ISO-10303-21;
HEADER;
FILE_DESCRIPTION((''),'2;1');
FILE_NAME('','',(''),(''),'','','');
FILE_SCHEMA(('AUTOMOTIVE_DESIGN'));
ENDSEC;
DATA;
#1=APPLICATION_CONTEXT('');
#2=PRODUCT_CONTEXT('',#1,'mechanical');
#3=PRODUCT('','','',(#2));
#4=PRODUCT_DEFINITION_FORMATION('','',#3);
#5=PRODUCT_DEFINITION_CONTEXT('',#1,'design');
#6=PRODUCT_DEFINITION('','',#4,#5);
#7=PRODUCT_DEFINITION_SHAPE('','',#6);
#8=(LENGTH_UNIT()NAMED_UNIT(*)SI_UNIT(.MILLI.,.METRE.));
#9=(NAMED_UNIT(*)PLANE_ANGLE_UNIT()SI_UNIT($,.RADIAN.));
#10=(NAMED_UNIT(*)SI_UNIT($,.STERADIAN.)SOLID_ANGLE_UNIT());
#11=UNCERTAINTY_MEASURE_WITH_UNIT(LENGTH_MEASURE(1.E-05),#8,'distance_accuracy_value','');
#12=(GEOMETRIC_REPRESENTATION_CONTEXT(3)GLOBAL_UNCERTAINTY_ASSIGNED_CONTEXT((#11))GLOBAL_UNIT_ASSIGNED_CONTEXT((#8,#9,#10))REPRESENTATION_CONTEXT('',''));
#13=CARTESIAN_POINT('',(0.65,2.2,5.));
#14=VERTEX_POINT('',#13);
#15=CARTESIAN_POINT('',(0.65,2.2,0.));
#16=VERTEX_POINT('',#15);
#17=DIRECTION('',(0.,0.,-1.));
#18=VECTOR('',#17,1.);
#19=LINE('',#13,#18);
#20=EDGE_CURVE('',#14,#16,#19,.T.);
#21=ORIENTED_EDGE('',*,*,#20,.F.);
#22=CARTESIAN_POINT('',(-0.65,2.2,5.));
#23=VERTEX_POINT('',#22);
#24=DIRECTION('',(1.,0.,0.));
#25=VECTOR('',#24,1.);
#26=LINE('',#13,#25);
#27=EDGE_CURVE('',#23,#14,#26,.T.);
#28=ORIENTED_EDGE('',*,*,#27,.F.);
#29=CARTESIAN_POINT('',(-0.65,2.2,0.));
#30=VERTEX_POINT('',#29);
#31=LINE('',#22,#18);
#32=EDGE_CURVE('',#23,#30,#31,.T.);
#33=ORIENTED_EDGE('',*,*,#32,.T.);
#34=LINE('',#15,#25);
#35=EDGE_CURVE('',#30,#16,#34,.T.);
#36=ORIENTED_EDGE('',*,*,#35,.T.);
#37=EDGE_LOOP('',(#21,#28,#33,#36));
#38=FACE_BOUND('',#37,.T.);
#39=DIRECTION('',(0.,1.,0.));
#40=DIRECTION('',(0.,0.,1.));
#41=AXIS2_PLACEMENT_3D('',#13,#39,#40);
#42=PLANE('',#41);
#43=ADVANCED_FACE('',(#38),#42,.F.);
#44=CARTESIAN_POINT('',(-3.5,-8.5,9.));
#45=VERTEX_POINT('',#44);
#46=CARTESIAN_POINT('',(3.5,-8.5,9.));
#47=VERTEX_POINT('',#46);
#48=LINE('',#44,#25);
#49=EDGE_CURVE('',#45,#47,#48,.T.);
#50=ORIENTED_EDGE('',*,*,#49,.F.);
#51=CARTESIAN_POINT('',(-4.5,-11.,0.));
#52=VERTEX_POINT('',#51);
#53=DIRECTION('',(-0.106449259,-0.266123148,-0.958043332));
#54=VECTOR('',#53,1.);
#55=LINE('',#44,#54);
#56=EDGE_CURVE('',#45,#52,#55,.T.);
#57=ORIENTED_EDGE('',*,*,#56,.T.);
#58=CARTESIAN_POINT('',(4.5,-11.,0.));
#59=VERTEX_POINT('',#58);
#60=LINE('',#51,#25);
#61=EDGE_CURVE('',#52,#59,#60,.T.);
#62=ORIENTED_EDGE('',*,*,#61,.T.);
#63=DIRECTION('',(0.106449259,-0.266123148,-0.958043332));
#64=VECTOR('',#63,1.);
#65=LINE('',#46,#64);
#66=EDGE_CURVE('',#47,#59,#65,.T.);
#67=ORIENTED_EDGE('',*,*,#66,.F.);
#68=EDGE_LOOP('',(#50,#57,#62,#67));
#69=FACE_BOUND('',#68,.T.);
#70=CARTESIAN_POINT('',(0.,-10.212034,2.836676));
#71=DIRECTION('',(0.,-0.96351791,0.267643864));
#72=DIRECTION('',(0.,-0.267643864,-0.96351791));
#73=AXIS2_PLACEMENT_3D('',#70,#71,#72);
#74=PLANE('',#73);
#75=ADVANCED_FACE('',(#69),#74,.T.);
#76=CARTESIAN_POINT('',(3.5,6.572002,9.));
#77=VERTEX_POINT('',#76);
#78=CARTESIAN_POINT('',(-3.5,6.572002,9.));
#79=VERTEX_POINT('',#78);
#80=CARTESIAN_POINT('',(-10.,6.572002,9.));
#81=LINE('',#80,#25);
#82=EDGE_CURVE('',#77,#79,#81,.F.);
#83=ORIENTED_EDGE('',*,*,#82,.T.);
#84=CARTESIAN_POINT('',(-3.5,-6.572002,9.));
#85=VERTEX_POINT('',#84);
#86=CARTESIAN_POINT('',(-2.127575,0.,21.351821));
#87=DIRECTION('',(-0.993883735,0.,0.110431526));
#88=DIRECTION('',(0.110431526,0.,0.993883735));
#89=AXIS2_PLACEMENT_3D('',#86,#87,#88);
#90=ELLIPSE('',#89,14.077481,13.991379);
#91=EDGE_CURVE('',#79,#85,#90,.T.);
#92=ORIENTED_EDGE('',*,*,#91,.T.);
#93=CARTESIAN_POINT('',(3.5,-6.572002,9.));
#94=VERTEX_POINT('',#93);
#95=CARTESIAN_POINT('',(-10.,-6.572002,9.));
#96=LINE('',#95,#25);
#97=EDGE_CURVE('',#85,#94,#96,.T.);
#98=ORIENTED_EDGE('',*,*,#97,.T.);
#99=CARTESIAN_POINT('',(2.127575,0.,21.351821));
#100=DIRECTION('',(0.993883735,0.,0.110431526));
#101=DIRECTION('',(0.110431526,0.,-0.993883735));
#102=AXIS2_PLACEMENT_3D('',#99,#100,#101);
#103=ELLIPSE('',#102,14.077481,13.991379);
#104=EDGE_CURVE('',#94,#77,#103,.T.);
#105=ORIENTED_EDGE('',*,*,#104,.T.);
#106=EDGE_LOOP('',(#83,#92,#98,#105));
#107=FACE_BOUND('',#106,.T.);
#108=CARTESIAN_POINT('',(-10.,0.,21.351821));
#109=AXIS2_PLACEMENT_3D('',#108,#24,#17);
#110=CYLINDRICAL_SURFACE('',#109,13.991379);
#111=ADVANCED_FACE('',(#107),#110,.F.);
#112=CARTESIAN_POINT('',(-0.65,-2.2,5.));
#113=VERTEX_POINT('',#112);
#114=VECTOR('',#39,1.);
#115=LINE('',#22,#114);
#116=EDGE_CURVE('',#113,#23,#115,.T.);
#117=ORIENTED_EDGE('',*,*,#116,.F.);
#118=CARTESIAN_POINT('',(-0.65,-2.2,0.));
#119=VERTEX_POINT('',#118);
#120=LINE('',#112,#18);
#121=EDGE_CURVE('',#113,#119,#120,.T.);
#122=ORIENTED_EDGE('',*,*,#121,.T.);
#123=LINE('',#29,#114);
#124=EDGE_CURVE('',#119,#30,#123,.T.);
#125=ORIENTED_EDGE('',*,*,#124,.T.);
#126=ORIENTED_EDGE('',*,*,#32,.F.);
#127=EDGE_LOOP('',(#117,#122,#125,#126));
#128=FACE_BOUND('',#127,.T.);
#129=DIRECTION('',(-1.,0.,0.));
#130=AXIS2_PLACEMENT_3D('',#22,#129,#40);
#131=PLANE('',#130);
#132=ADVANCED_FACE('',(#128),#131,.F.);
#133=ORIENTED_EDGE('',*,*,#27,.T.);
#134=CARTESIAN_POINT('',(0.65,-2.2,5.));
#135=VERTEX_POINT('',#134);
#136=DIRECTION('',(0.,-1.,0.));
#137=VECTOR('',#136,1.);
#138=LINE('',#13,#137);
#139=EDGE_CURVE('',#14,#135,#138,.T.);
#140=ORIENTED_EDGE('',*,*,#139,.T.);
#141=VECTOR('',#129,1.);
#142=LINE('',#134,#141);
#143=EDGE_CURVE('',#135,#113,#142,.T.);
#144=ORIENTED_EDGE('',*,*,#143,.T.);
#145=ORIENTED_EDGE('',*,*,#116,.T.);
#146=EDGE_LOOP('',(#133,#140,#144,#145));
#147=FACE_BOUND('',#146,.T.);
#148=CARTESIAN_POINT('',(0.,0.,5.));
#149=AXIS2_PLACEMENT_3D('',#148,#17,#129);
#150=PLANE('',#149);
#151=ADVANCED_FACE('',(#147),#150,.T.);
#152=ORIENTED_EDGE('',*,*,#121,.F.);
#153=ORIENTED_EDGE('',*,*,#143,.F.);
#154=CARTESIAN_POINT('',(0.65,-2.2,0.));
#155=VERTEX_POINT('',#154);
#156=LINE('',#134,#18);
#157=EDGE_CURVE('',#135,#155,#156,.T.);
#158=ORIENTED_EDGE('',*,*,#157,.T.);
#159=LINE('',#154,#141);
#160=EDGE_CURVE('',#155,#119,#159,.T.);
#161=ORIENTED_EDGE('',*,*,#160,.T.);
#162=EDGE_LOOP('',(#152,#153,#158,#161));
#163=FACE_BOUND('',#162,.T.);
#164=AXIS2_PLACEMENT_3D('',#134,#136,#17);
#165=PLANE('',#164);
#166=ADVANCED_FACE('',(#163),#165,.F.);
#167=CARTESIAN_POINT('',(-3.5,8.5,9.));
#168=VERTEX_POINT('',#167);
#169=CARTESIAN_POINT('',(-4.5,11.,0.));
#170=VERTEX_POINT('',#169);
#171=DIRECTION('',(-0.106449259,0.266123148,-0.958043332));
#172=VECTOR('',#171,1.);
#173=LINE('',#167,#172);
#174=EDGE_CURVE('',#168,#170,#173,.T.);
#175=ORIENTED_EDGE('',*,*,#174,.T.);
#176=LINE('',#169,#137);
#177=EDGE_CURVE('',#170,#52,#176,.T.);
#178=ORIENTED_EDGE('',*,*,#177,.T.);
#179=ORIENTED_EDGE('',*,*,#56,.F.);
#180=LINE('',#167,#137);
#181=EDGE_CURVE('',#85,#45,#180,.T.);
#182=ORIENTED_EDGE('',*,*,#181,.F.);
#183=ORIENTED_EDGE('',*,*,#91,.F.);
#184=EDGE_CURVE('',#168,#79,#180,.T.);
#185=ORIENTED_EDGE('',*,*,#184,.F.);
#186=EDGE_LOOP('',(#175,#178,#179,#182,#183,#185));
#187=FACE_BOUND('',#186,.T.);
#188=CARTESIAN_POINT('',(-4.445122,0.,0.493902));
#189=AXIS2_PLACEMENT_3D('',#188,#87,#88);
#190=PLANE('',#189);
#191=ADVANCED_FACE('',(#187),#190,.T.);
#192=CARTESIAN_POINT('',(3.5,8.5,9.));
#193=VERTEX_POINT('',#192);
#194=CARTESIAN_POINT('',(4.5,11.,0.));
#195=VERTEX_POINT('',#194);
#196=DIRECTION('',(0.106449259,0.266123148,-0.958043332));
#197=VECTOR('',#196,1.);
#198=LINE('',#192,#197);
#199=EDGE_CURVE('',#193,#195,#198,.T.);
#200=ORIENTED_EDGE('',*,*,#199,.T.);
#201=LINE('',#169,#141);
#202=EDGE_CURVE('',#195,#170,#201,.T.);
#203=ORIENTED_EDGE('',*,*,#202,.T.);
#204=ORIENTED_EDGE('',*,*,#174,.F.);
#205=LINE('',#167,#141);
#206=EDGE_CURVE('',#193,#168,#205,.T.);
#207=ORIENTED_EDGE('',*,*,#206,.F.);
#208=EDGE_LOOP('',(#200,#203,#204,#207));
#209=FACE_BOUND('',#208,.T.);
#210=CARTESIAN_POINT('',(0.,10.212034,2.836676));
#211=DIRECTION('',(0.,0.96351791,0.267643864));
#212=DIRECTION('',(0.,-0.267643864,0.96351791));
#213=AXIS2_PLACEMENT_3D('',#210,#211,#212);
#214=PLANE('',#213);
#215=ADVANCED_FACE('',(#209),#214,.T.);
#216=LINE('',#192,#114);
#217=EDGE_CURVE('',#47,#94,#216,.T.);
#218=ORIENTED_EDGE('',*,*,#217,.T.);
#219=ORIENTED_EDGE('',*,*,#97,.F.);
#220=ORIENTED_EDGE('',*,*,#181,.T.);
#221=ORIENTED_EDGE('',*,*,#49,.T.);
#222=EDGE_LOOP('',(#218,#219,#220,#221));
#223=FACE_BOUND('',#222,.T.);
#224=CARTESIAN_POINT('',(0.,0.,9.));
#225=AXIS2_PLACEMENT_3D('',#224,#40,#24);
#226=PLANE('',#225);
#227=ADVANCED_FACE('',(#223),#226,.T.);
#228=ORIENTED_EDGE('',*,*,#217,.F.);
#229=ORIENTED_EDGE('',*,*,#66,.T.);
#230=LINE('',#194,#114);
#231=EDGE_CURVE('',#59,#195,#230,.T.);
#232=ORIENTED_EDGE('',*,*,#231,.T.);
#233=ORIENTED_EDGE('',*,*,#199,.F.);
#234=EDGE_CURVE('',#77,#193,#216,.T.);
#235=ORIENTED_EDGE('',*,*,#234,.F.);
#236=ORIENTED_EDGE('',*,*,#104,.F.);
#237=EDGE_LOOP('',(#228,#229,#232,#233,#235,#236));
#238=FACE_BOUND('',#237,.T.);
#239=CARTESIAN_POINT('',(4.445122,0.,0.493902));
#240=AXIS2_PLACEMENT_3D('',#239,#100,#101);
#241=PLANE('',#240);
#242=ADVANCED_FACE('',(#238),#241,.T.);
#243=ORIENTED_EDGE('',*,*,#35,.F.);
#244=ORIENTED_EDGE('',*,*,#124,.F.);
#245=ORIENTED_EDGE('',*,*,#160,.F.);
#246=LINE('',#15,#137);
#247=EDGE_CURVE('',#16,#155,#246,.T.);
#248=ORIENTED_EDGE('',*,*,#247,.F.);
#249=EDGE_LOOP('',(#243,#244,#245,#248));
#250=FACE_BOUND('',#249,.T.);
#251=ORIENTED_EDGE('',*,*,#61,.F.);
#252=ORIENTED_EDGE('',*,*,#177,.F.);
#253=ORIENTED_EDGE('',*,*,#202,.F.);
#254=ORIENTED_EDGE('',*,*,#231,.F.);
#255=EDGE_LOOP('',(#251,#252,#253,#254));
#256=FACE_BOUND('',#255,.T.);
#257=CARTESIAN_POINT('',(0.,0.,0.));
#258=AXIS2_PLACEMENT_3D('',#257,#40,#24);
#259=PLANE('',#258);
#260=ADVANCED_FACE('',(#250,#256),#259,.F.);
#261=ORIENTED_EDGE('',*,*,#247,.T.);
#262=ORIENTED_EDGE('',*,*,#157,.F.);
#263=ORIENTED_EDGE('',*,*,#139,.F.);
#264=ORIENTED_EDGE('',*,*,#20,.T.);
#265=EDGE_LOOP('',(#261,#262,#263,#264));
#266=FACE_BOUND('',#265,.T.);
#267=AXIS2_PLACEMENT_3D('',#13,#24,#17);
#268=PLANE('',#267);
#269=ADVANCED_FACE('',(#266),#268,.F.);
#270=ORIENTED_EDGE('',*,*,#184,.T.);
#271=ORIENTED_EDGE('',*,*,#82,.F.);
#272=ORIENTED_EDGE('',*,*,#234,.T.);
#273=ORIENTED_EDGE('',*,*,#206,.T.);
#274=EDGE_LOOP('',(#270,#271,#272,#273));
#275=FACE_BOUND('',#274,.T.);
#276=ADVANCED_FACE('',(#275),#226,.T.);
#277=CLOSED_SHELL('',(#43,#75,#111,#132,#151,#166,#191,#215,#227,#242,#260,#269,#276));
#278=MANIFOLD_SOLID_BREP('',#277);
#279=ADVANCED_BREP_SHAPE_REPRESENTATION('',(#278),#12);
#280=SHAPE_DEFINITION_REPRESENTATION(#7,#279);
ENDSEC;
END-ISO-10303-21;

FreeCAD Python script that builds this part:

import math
import FreeCAD as App
import Part
import Sketcher
from FreeCAD import Vector
Q = App.Units.Quantity


def add_polygon(sketch, points):
    """Adds a closed chain of lines whose ends are joined by coincident constraints."""
    first, n = sketch.GeometryCount, len(points)
    for a, b in zip(points, points[1:] + points[:1]):
        sketch.addGeometry(Part.LineSegment(App.Vector(*a, 0), App.Vector(*b, 0)), False)
    for i in range(n):
        sketch.addConstraint(Sketcher.Constraint("Coincident", first + i, 2, first + (i + 1) % n, 1))

doc = App.newDocument("Part")
body = doc.addObject("PartDesign::Body", "Body")

sketch1 = body.newObject("Sketcher::SketchObject", "Sketch")
sketch1.AttachmentSupport = (doc.getObject("XY_Plane"), [""])
sketch1.MapMode = "FlatFace"
sketch1.AttachmentOffset = App.Placement(Vector(0, 0, 9), App.Rotation())
add_polygon(sketch1, [(4, 8), (-4, 8), (-4, -8), (4, -8)])
sketch1.addConstraint([
    Sketcher.Constraint("Horizontal", 0),
    Sketcher.Constraint("Vertical", 1),
    Sketcher.Constraint("Horizontal", 2),
    Sketcher.Constraint("Vertical", 3),
    Sketcher.Constraint("Symmetric", 0, 2, 2, 2, -1, 1),
    Sketcher.Constraint("DistanceX", 0, 2, 0, 1, Q("7 mm")),
    Sketcher.Constraint("DistanceY", 1, 2, 1, 1, Q("17 mm")),
])

sketch2 = body.newObject("Sketcher::SketchObject", "Sketch001")
sketch2.AttachmentSupport = (doc.getObject("XY_Plane"), [""])
sketch2.MapMode = "FlatFace"
add_polygon(sketch2, [(4, 11), (-4, 11), (-4, -11), (4, -11)])
sketch2.addConstraint([
    Sketcher.Constraint("Horizontal", 0),
    Sketcher.Constraint("Vertical", 1),
    Sketcher.Constraint("Horizontal", 2),
    Sketcher.Constraint("Vertical", 3),
    Sketcher.Constraint("Symmetric", 0, 2, 2, 2, -1, 1),
    Sketcher.Constraint("DistanceX", 0, 2, 0, 1, Q("9 mm")),
    Sketcher.Constraint("DistanceY", 1, 2, 1, 1, Q("22 mm")),
])

additiveloft = body.newObject("PartDesign::AdditiveLoft", "AdditiveLoft")
additiveloft.Profile = sketch1
additiveloft.Sections = [sketch2]

sketch3 = body.newObject("Sketcher::SketchObject", "Sketch002")
sketch3.AttachmentSupport = (doc.getObject("XY_Plane"), [""])
sketch3.MapMode = "FlatFace"
add_polygon(sketch3, [(0.7, 2.2), (0.7, -2.2), (-0.7, -2.2), (-0.7, 2.2)])
sketch3.addConstraint([
    Sketcher.Constraint("Vertical", 0),
    Sketcher.Constraint("Horizontal", 1),
    Sketcher.Constraint("Vertical", 2),
    Sketcher.Constraint("Horizontal", 3),
    Sketcher.Constraint("Symmetric", 0, 2, 2, 2, -1, 1),
    Sketcher.Constraint("DistanceX", 1, 2, 1, 1, Q("1.3 mm")),
    Sketcher.Constraint("DistanceY", 0, 2, 0, 1, Q("4.4 mm")),
])
pocket1 = body.newObject("PartDesign::Pocket", "Pocket")
pocket1.Profile = sketch3
pocket1.Length = 5
pocket1.Reversed = True

sketch4 = body.newObject("Sketcher::SketchObject", "Sketch003")
sketch4.AttachmentSupport = (doc.getObject("YZ_Plane"), [""])
sketch4.MapMode = "FlatFace"
sketch4.addGeometry([
    Part.LineSegment(Vector(8, 10, 0), Vector(-8, 10, 0)),
    Part.ArcOfCircle(Part.Circle(Vector(0, 21, 0), Vector(0, 0, 1), 14), math.radians(-127), math.radians(-55)),
], False)
sketch4.addConstraint([
    Sketcher.Constraint("Coincident", 0, 1, 1, 2),
    Sketcher.Constraint("Coincident", 1, 1, 0, 2),
    Sketcher.Constraint("PointOnObject", 1, 3, -2),
    Sketcher.Constraint("Radius", 1, Q("13.991379 mm")),
    Sketcher.Constraint("Distance", 0, Q("16.355541 mm")),
    Sketcher.Constraint("DistanceY", -1, 1, 1, 3, Q("21.351821 mm")),
    Sketcher.Constraint("DistanceY", -1, 1, 0, 1, Q("9.86107 mm")),
])
pocket2 = body.newObject("PartDesign::Pocket", "Pocket001")
pocket2.Profile = sketch4
pocket2.Length = 20
pocket2.Midplane = True

doc.recompute()
